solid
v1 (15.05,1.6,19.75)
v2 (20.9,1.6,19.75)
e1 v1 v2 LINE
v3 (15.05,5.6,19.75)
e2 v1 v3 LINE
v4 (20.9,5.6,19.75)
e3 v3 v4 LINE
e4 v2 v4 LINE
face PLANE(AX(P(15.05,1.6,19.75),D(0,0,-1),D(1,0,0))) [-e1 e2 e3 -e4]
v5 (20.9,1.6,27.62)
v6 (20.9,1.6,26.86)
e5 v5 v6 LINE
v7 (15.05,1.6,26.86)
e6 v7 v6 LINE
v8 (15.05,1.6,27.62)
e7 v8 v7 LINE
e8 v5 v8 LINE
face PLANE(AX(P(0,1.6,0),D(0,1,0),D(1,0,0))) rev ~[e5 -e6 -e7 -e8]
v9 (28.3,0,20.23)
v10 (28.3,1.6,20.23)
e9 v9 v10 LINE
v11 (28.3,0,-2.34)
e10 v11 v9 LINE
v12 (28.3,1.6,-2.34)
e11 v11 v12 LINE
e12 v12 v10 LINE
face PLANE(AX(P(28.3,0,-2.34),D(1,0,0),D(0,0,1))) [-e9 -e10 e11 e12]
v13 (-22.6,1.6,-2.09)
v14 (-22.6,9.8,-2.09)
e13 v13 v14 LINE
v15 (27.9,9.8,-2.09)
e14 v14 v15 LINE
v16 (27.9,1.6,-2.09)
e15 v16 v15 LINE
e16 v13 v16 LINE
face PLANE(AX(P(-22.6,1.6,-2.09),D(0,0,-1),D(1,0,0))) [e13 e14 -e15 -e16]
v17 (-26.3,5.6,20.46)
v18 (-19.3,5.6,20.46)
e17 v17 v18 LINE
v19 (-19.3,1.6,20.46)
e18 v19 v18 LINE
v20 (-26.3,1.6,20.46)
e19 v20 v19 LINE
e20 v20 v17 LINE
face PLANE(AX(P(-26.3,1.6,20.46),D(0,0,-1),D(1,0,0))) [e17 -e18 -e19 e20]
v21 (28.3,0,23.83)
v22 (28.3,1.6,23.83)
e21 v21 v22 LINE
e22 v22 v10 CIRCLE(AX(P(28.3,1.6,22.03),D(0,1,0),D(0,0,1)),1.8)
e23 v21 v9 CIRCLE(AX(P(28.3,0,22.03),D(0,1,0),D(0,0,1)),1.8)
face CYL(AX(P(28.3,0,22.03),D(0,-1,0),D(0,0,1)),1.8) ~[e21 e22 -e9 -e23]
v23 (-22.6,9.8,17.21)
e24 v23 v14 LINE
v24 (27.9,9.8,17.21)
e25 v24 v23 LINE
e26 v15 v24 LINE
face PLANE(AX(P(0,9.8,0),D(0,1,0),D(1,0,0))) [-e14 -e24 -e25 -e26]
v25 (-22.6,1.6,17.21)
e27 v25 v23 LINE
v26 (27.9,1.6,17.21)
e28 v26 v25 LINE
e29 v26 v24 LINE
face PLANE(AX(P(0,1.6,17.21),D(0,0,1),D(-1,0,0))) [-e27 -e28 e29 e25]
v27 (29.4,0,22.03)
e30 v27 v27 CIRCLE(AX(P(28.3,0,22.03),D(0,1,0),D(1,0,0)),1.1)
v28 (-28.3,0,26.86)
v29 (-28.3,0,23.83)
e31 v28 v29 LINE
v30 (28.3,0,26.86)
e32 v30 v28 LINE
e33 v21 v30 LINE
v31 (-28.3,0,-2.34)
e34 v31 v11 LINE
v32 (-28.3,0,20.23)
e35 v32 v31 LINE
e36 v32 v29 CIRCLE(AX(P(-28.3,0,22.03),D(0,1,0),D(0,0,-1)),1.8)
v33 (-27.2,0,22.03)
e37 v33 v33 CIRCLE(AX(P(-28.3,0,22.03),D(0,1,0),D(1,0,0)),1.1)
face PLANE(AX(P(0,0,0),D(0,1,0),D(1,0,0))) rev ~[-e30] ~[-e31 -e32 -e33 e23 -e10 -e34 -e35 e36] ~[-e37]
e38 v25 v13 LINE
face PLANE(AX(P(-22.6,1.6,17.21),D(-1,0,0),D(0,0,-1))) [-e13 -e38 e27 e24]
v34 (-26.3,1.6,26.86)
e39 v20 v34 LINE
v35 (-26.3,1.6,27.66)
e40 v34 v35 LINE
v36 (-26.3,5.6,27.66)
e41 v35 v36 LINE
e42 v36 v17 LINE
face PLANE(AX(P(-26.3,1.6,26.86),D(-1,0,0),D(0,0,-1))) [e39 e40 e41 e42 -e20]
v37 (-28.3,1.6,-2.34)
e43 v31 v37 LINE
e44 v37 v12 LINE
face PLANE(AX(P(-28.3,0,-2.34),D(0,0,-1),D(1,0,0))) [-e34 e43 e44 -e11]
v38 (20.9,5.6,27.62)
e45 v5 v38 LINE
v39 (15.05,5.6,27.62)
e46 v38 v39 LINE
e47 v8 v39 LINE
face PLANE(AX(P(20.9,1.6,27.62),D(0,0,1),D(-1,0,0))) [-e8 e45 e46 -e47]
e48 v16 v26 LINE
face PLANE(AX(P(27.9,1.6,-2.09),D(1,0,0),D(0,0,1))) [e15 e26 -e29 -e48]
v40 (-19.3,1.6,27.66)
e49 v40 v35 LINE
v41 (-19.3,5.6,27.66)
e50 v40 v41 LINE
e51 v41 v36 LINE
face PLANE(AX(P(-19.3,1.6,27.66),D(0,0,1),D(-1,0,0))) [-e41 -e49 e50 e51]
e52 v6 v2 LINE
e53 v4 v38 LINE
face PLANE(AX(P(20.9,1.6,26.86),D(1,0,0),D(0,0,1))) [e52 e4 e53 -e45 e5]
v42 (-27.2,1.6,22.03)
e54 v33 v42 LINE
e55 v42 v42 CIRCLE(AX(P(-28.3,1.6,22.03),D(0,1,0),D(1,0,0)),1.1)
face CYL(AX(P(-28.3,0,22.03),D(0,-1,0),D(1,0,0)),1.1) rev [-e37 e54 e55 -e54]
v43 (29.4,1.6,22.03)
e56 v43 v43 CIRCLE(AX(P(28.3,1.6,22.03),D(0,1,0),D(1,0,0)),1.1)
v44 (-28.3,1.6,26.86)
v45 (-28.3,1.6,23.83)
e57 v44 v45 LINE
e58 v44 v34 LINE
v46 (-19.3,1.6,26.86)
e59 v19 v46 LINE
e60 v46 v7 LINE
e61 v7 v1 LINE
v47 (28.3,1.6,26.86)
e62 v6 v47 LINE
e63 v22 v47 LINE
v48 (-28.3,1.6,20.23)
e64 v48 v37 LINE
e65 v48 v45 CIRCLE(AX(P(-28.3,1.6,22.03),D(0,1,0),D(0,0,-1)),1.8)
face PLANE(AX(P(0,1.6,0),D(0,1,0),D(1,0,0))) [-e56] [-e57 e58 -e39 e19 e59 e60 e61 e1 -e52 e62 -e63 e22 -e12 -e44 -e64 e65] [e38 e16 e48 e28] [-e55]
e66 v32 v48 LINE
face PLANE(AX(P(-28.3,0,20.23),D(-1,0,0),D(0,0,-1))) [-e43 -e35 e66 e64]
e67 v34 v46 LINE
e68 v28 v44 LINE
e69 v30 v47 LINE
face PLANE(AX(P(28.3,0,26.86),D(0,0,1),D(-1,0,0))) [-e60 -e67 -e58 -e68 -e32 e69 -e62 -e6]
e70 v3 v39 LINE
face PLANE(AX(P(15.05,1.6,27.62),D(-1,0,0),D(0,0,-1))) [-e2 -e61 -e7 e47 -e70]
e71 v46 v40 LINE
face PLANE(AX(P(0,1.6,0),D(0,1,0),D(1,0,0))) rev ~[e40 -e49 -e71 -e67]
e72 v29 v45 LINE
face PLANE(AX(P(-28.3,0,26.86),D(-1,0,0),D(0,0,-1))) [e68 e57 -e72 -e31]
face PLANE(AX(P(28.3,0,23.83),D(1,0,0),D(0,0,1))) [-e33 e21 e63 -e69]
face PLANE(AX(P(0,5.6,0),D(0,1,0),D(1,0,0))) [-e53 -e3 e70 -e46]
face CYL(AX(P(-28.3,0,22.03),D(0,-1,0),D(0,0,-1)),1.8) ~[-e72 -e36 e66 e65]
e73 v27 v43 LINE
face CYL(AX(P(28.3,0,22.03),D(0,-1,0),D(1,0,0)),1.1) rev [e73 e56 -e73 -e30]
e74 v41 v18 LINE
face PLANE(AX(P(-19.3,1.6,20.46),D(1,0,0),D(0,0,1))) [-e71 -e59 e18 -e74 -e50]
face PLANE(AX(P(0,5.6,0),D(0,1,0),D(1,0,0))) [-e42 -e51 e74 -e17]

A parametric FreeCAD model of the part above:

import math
import FreeCAD as App
import Part
import Sketcher

V = App.Vector

doc = App.newDocument("Part")
body = doc.addObject("PartDesign::Body", "Body")

# Sketch on XZ plane
sketch1 = body.newObject("Sketcher::SketchObject", "Sketch")
sketch1.AttachmentSupport = (doc.getObject("XZ_Plane"), [""])
sketch1.MapMode = "FlatFace"
sketch1.addGeometry(Part.LineSegment(V(28.3, -2.3, 0), V(-28.3, -2.3, 0)), False)
sketch1.addGeometry(Part.LineSegment(V(-28.3, -2.3, 0), V(-28.3, 20.2, 0)), False)
sketch1.addGeometry(Part.ArcOfCircle(Part.Circle(V(-28.3, 22, 0), V(0, 0, 1), 1.8), math.radians(90), math.radians(270)), False)
sketch1.addGeometry(Part.LineSegment(V(-28.3, 23.8, 0), V(-28.3, 26.9, 0)), False)
sketch1.addGeometry(Part.LineSegment(V(-28.3, 26.9, 0), V(28.3, 26.9, 0)), False)
sketch1.addGeometry(Part.LineSegment(V(28.3, 26.9, 0), V(28.3, 23.8, 0)), False)
sketch1.addGeometry(Part.ArcOfCircle(Part.Circle(V(28.3, 22, 0), V(0, 0, 1), 1.8), math.radians(-90), math.radians(90)), False)
sketch1.addGeometry(Part.LineSegment(V(28.3, 20.2, 0), V(28.3, -2.3, 0)), False)
sketch1.addGeometry(Part.Circle(V(-28.3, 22, 0), V(0, 0, 1), 1.1), False)
sketch1.addGeometry(Part.Circle(V(28.3, 22, 0), V(0, 0, 1), 1.1), False)
sketch1.addConstraint(Sketcher.Constraint("Coincident", 0, 2, 1, 1))
sketch1.addConstraint(Sketcher.Constraint("Coincident", 1, 2, 2, 2))
sketch1.addConstraint(Sketcher.Constraint("Coincident", 2, 1, 3, 1))
sketch1.addConstraint(Sketcher.Constraint("Coincident", 3, 2, 4, 1))
sketch1.addConstraint(Sketcher.Constraint("Coincident", 4, 2, 5, 1))
sketch1.addConstraint(Sketcher.Constraint("Coincident", 5, 2, 6, 2))
sketch1.addConstraint(Sketcher.Constraint("Coincident", 6, 1, 7, 1))
sketch1.addConstraint(Sketcher.Constraint("Coincident", 7, 2, 0, 1))
sketch1.addConstraint(Sketcher.Constraint("Horizontal", 0))
sketch1.addConstraint(Sketcher.Constraint("Vertical", 1))
sketch1.addConstraint(Sketcher.Constraint("Vertical", 3))
sketch1.addConstraint(Sketcher.Constraint("Horizontal", 4))
sketch1.addConstraint(Sketcher.Constraint("Vertical", 5))
sketch1.addConstraint(Sketcher.Constraint("Vertical", 7))
sketch1.addConstraint(Sketcher.Constraint("Coincident", 8, 3, 2, 3))
sketch1.addConstraint(Sketcher.Constraint("Coincident", 9, 3, 6, 3))
sketch1.addConstraint(Sketcher.Constraint("Equal", 2, 6))
sketch1.addConstraint(Sketcher.Constraint("Equal", 8, 9))
sketch1.addConstraint(Sketcher.Constraint("Symmetric", 2, 3, 6, 3, -2))
sketch1.addConstraint(Sketcher.Constraint("Vertical", 8, 3, 0, 2))
sketch1.addConstraint(Sketcher.Constraint("Vertical", 1, 2, 2, 1))
sketch1.addConstraint(Sketcher.Constraint("Vertical", 9, 3, 4, 2))
sketch1.addConstraint(Sketcher.Constraint("Vertical", 5, 2, 6, 1))
sketch1.addConstraint(Sketcher.Constraint("Diameter", 8, 2.2))
sketch1.addConstraint(Sketcher.Constraint("Radius", 2, 1.8))
sketch1.addConstraint(Sketcher.Constraint("DistanceX", 0, 2, 0, 1, 56.6))
sketch1.addConstraint(Sketcher.Constraint("DistanceY", 0, 2, 3, 2, 29.2))
sketch1.addConstraint(Sketcher.Constraint("DistanceY", 2, 3, 3, 2, 4.83))
sketch1.addConstraint(Sketcher.Constraint("DistanceY", -1, 1, 2, 3, 22.03))
pad1 = body.newObject("PartDesign::Pad", "Pad")
pad1.Profile = sketch1
pad1.Length = 1.6
pad1.Reversed = True

# Sketch on XZ plane
sketch2 = body.newObject("Sketcher::SketchObject", "Sketch001")
sketch2.AttachmentSupport = (doc.getObject("XZ_Plane"), [""])
sketch2.MapMode = "FlatFace"
sketch2.AttachmentOffset = App.Placement(V(0, 0, -1.6), App.Rotation())
sketch2.addGeometry(Part.LineSegment(V(28, -2, 0), V(-23, -2, 0)), False)
sketch2.addGeometry(Part.LineSegment(V(-23, -2, 0), V(-23, 17, 0)), False)
sketch2.addGeometry(Part.LineSegment(V(-23, 17, 0), V(28, 17, 0)), False)
sketch2.addGeometry(Part.LineSegment(V(28, 17, 0), V(28, -2, 0)), False)
sketch2.addConstraint(Sketcher.Constraint("Coincident", 0, 2, 1, 1))
sketch2.addConstraint(Sketcher.Constraint("Coincident", 1, 2, 2, 1))
sketch2.addConstraint(Sketcher.Constraint("Coincident", 2, 2, 3, 1))
sketch2.addConstraint(Sketcher.Constraint("Coincident", 3, 2, 0, 1))
sketch2.addConstraint(Sketcher.Constraint("Horizontal", 0))
sketch2.addConstraint(Sketcher.Constraint("Vertical", 1))
sketch2.addConstraint(Sketcher.Constraint("Horizontal", 2))
sketch2.addConstraint(Sketcher.Constraint("Vertical", 3))
sketch2.addConstraint(Sketcher.Constraint("DistanceX", 0, 2, 0, 1, 50.5))
sketch2.addConstraint(Sketcher.Constraint("DistanceY", 1, 1, 1, 2, 19.3))
sketch2.addConstraint(Sketcher.Constraint("DistanceX", 0, 2, -1, 1, 22.6))
sketch2.addConstraint(Sketcher.Constraint("DistanceY", 0, 2, -1, 1, 2.09))
pad2 = body.newObject("PartDesign::Pad", "Pad001")
pad2.Profile = sketch2
pad2.Length = 8.2
pad2.Reversed = True

# Sketch on XZ plane
sketch3 = body.newObject("Sketcher::SketchObject", "Sketch002")
sketch3.AttachmentSupport = (doc.getObject("XZ_Plane"), [""])
sketch3.MapMode = "FlatFace"
sketch3.AttachmentOffset = App.Placement(V(0, 0, -1.6), App.Rotation())
sketch3.addGeometry(Part.LineSegment(V(-26, 20, 0), V(-26, 28, 0)), False)
sketch3.addGeometry(Part.LineSegment(V(-26, 28, 0), V(-19, 28, 0)), False)
sketch3.addGeometry(Part.LineSegment(V(-19, 28, 0), V(-19, 20, 0)), False)
sketch3.addGeometry(Part.LineSegment(V(-19, 20, 0), V(-26, 20, 0)), False)
sketch3.addGeometry(Part.LineSegment(V(21, 28, 0), V(21, 20, 0)), False)
sketch3.addGeometry(Part.LineSegment(V(21, 20, 0), V(15, 20, 0)), False)
sketch3.addGeometry(Part.LineSegment(V(15, 20, 0), V(15, 28, 0)), False)
sketch3.addGeometry(Part.LineSegment(V(15, 28, 0), V(21, 28, 0)), False)
sketch3.addConstraint(Sketcher.Constraint("Coincident", 0, 2, 1, 1))
sketch3.addConstraint(Sketcher.Constraint("Coincident", 1, 2, 2, 1))
sketch3.addConstraint(Sketcher.Constraint("Coincident", 2, 2, 3, 1))
sketch3.addConstraint(Sketcher.Constraint("Coincident", 3, 2, 0, 1))
sketch3.addConstraint(Sketcher.Constraint("Coincident", 4, 2, 5, 1))
sketch3.addConstraint(Sketcher.Constraint("Coincident", 5, 2, 6, 1))
sketch3.addConstraint(Sketcher.Constraint("Coincident", 6, 2, 7, 1))
sketch3.addConstraint(Sketcher.Constraint("Coincident", 7, 2, 4, 1))
sketch3.addConstraint(Sketcher.Constraint("Vertical", 0))
sketch3.addConstraint(Sketcher.Constraint("Horizontal", 1))
sketch3.addConstraint(Sketcher.Constraint("Vertical", 2))
sketch3.addConstraint(Sketcher.Constraint("Horizontal", 3))
sketch3.addConstraint(Sketcher.Constraint("Vertical", 4))
sketch3.addConstraint(Sketcher.Constraint("Horizontal", 5))
sketch3.addConstraint(Sketcher.Constraint("Vertical", 6))
sketch3.addConstraint(Sketcher.Constraint("Horizontal", 7))
sketch3.addConstraint(Sketcher.Constraint("DistanceX", 1, 1, 1, 2, 7.0))
sketch3.addConstraint(Sketcher.Constraint("DistanceX", 5, 2, 5, 1, 5.85))
sketch3.addConstraint(Sketcher.Constraint("DistanceX", 1, 2, -1, 1, 19.3))
sketch3.addConstraint(Sketcher.Constraint("DistanceY", 0, 1, 0, 2, 7.2))
sketch3.addConstraint(Sketcher.Constraint("DistanceY", 4, 2, 4, 1, 7.87))
sketch3.addConstraint(Sketcher.Constraint("DistanceX", -1, 1, 4, 2, 20.9))
sketch3.addConstraint(Sketcher.Constraint("DistanceY", -1, 1, 0, 2, 27.66))
sketch3.addConstraint(Sketcher.Constraint("DistanceY", -1, 1, 4, 2, 19.75))
pad3 = body.newObject("PartDesign::Pad", "Pad002")
pad3.Profile = sketch3
pad3.Length = 4
pad3.Reversed = True

doc.recompute()
